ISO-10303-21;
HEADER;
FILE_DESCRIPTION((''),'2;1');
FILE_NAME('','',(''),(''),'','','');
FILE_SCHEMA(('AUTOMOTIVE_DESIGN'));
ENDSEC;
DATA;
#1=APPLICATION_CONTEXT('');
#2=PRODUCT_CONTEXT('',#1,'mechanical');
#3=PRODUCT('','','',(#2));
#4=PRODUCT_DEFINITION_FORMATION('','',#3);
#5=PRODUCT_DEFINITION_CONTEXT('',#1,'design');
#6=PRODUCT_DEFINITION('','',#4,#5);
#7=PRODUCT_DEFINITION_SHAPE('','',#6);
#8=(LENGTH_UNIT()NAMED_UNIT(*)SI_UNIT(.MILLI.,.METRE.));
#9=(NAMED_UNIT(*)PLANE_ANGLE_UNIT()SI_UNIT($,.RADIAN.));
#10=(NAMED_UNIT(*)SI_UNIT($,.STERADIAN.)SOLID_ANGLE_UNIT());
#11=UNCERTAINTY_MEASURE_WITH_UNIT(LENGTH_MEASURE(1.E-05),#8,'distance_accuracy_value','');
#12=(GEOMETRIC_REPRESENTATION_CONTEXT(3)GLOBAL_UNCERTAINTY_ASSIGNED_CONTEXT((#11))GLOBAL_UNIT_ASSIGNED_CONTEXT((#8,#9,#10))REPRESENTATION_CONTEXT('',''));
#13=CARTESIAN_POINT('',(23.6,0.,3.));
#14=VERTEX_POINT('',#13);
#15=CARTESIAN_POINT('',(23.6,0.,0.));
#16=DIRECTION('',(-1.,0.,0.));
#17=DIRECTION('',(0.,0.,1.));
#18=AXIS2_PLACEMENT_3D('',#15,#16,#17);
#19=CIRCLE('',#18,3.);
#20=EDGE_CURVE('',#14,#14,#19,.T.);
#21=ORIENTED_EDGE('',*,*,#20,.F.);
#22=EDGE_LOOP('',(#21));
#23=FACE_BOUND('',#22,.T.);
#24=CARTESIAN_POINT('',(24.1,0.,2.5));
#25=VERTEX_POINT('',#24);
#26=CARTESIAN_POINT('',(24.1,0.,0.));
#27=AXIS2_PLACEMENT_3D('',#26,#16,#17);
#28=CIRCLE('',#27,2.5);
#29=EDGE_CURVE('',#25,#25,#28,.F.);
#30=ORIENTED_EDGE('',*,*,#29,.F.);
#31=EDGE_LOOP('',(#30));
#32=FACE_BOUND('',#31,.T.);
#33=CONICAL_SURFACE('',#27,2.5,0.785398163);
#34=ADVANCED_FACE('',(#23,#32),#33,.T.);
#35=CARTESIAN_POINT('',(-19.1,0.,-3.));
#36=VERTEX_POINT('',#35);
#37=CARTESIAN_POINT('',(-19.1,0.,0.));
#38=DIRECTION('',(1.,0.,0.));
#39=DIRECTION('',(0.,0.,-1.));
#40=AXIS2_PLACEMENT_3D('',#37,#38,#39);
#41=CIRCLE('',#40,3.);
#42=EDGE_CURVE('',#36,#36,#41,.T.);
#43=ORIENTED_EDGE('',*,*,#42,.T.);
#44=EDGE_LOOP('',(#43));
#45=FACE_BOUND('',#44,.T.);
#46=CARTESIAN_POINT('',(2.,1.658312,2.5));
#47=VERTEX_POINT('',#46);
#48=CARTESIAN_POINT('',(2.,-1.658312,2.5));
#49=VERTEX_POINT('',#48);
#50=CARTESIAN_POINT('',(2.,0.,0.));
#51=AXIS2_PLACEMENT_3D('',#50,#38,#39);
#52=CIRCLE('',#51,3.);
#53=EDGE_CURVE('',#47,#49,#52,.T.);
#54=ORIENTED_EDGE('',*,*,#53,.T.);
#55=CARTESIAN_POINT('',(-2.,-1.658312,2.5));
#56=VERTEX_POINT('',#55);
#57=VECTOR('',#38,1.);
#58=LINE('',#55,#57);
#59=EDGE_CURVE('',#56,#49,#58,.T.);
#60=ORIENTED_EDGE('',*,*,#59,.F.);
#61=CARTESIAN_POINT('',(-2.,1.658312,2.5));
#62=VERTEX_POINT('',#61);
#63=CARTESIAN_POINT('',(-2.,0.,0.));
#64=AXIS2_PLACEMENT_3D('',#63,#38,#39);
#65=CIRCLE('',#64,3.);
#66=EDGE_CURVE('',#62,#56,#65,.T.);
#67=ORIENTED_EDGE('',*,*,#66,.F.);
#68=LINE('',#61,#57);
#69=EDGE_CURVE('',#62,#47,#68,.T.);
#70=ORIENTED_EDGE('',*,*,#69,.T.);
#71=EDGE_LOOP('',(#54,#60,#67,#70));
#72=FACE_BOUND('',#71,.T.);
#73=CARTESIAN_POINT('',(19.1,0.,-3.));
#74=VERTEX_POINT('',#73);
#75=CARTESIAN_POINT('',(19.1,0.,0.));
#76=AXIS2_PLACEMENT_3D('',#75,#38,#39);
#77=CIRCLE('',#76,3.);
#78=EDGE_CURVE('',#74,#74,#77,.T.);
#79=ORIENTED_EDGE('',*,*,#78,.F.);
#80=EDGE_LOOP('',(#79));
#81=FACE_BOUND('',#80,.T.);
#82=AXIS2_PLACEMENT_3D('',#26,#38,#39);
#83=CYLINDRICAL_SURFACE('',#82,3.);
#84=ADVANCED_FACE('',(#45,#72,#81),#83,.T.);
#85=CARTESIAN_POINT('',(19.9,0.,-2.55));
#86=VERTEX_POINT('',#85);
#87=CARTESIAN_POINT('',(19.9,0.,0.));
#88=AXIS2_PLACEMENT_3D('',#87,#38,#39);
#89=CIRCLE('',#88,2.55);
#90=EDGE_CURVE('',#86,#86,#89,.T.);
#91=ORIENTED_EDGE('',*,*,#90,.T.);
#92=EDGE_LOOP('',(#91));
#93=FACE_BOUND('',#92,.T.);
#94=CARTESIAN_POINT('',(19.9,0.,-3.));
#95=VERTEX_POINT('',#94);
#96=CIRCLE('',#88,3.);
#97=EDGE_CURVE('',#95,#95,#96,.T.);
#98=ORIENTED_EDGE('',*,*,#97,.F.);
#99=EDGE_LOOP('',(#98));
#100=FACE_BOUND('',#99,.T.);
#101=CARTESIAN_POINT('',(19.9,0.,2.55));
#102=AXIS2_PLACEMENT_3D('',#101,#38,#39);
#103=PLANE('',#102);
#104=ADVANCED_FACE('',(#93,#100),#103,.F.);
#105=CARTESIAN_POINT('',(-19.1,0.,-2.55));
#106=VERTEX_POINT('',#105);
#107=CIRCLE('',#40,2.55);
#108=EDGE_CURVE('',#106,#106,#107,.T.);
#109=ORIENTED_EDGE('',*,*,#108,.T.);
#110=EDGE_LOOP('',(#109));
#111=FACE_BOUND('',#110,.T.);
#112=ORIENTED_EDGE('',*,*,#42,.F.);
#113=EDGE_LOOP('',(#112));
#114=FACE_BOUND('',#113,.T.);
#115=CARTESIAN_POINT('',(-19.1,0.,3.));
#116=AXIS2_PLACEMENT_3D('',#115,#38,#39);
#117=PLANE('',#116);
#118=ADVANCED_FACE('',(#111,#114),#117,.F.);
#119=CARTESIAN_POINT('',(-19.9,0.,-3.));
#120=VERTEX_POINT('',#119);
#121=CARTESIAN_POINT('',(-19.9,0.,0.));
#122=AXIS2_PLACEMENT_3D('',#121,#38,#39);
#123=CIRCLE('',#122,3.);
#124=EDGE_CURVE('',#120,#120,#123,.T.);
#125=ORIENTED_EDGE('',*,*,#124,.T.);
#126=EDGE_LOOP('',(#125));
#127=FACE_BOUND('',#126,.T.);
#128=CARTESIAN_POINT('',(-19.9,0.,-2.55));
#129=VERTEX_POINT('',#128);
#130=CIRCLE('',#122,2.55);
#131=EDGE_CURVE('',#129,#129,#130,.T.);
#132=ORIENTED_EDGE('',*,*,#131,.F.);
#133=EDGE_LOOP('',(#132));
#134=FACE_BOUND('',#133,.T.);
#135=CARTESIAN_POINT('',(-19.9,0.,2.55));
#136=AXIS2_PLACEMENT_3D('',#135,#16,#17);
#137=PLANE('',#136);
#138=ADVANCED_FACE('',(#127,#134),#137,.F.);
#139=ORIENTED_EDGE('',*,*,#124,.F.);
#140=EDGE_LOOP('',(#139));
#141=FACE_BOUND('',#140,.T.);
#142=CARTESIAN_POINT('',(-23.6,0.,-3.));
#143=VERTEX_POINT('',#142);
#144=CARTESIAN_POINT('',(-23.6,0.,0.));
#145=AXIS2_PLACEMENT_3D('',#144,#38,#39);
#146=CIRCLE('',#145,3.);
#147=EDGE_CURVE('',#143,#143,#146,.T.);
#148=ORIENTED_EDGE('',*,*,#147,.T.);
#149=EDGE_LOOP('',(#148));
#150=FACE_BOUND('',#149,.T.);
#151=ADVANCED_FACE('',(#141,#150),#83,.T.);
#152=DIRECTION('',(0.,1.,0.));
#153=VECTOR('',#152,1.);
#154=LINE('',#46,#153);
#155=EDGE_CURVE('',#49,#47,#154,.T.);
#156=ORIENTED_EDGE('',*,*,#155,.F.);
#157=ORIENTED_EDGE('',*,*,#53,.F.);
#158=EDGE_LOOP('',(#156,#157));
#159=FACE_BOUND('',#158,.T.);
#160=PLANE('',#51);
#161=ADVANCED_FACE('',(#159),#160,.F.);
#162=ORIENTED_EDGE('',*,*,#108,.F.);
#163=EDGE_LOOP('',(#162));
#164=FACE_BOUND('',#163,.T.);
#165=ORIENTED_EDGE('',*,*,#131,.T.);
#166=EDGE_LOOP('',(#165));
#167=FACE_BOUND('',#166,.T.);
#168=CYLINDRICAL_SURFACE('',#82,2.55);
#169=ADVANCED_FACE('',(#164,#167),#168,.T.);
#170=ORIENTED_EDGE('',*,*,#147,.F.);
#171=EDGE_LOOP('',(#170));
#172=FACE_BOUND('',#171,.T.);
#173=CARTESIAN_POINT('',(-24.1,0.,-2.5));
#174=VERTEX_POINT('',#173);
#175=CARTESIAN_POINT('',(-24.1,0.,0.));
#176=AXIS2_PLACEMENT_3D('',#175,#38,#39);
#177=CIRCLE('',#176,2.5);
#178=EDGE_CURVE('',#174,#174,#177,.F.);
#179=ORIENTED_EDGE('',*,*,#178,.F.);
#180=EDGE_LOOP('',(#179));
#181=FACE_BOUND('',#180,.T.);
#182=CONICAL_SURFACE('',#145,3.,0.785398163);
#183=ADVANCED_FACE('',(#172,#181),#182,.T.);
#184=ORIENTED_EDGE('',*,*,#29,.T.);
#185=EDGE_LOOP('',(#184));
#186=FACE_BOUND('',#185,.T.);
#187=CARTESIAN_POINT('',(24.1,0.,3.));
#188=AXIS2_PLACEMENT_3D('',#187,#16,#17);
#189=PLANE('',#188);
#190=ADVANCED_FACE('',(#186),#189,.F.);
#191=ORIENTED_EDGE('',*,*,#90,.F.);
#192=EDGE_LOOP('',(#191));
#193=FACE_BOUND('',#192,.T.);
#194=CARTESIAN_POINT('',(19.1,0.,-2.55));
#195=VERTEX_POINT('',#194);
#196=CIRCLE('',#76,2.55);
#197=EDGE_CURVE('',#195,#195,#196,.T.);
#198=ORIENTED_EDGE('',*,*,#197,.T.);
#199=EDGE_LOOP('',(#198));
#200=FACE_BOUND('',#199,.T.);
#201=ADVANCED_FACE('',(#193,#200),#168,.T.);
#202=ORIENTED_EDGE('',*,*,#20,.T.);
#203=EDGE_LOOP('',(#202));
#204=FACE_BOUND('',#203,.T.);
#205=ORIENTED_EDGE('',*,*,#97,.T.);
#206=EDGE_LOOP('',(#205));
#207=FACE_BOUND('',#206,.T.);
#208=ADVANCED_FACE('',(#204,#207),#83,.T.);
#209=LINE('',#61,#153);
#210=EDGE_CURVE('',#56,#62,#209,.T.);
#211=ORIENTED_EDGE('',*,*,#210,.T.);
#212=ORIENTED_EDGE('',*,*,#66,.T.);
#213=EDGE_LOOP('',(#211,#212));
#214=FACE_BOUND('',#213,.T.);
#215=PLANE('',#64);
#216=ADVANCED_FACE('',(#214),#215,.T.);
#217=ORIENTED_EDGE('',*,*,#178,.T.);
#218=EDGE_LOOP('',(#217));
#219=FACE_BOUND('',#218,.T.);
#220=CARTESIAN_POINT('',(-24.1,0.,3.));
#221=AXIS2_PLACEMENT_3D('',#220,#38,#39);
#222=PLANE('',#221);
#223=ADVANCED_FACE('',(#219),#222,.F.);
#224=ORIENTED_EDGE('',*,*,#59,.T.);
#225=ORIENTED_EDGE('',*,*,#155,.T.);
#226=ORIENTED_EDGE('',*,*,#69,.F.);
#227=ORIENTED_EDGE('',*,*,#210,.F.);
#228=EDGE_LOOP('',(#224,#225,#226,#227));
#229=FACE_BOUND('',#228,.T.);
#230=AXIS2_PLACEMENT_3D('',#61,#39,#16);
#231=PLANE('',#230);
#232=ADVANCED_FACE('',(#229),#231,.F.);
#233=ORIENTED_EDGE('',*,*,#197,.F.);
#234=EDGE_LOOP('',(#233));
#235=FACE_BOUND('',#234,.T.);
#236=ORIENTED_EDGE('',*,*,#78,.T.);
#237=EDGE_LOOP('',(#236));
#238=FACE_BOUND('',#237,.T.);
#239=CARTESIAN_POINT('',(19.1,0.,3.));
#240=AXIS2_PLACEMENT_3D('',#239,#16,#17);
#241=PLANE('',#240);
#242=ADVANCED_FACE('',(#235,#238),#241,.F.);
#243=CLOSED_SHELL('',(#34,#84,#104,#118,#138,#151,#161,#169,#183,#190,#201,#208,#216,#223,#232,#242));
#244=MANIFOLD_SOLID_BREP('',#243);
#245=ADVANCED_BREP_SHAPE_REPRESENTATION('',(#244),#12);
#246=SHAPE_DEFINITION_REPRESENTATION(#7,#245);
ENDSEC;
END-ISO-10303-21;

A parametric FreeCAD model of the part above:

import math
import FreeCAD as App
import Part
import Sketcher

V = App.Vector


def edges_at(feature, points):
    """Names of the edges that pass closest to the given points."""
    edges = feature.Shape.Edges
    near = lambda p: min(range(len(edges)), key=lambda i: edges[i].distToShape(Part.Vertex(*p))[0])
    return sorted({f"Edge{near(p) + 1}" for p in points})

doc = App.newDocument("Part")
body = doc.addObject("PartDesign::Body", "Body")

# Sketch on XZ plane
sketch1 = body.newObject("Sketcher::SketchObject", "Sketch")
sketch1.AttachmentSupport = (doc.getObject("XZ_Plane"), [""])
sketch1.MapMode = "FlatFace"
sketch1.addGeometry([
    Part.LineSegment(V(-19.1, 3, 0), V(19.1, 3, 0)),  # 0
    Part.LineSegment(V(19.1, 3, 0), V(19.1, 2.55, 0)),  # 1
    Part.LineSegment(V(19.1, 2.55, 0), V(19.9, 2.55, 0)),  # 2
    Part.LineSegment(V(19.9, 2.55, 0), V(19.9, 3, 0)),  # 3
    Part.LineSegment(V(19.9, 3, 0), V(24.1, 3, 0)),  # 4
    Part.LineSegment(V(24.1, 3, 0), V(24.1, 0, 0)),  # 5
    Part.LineSegment(V(24.1, 0, 0), V(-24.1, 0, 0)),  # 6
    Part.LineSegment(V(-24.1, 0, 0), V(-24.1, 3, 0)),  # 7
    Part.LineSegment(V(-24.1, 3, 0), V(-19.9, 3, 0)),  # 8
    Part.LineSegment(V(-19.9, 3, 0), V(-19.9, 2.55, 0)),  # 9
    Part.LineSegment(V(-19.9, 2.55, 0), V(-19.1, 2.55, 0)),  # 10
    Part.LineSegment(V(-19.1, 2.55, 0), V(-19.1, 3, 0)),  # 11
], False)
sketch1.addConstraint([
    Sketcher.Constraint("Coincident", 0, 2, 1, 1),
    Sketcher.Constraint("Coincident", 1, 2, 2, 1),
    Sketcher.Constraint("Coincident", 2, 2, 3, 1),
    Sketcher.Constraint("Coincident", 3, 2, 4, 1),
    Sketcher.Constraint("Coincident", 4, 2, 5, 1),
    Sketcher.Constraint("Coincident", 5, 2, 6, 1),
    Sketcher.Constraint("Coincident", 6, 2, 7, 1),
    Sketcher.Constraint("Coincident", 7, 2, 8, 1),
    Sketcher.Constraint("Coincident", 8, 2, 9, 1),
    Sketcher.Constraint("Coincident", 9, 2, 10, 1),
    Sketcher.Constraint("Coincident", 10, 2, 11, 1),
    Sketcher.Constraint("Coincident", 11, 2, 0, 1),
    Sketcher.Constraint("Horizontal", 0),
    Sketcher.Constraint("Vertical", 1),
    Sketcher.Constraint("Horizontal", 2),
    Sketcher.Constraint("Vertical", 3),
    Sketcher.Constraint("Horizontal", 4),
    Sketcher.Constraint("Vertical", 5),
    Sketcher.Constraint("Horizontal", 6),
    Sketcher.Constraint("Vertical", 7),
    Sketcher.Constraint("Horizontal", 8),
    Sketcher.Constraint("Vertical", 9),
    Sketcher.Constraint("Horizontal", 10),
    Sketcher.Constraint("Vertical", 11),
    Sketcher.Constraint("Symmetric", 5, 2, 6, 2, -1, 1),
    Sketcher.Constraint("Symmetric", 3, 2, 8, 2, -2),
    Sketcher.Constraint("Symmetric", 1, 2, 10, 2, -2),
    Sketcher.Constraint("Horizontal", 0, 2, 3, 2),
    Sketcher.Constraint("DistanceY", 5, 2, 5, 1, 3.0),
    Sketcher.Constraint("DistanceX", 0, 1, 0, 2, 38.2),
    Sketcher.Constraint("DistanceX", 2, 1, 2, 2, 0.8),
    Sketcher.Constraint("DistanceX", 4, 1, 4, 2, 4.2),
    Sketcher.Constraint("DistanceY", 1, 2, 1, 1, 0.45),
])
revolution = body.newObject("PartDesign::Revolution", "Revolution")
revolution.Profile = sketch1
revolution.ReferenceAxis = (sketch1, ["H_Axis"])
revolution.Angle = 360

# Sketch on YZ plane
sketch2 = body.newObject("Sketcher::SketchObject", "Sketch001")
sketch2.AttachmentSupport = (doc.getObject("YZ_Plane"), [""])
sketch2.MapMode = "FlatFace"
sketch2.addGeometry([
    Part.LineSegment(V(-1.7, 2.5, 0), V(1.7, 2.5, 0)),
    Part.ArcOfCircle(Part.Circle(V(0, 0, 0), V(0, 0, 1), 3), math.radians(56), math.radians(124)),
], False)
sketch2.addConstraint([
    Sketcher.Constraint("Coincident", 0, 1, 1, 2),
    Sketcher.Constraint("Coincident", 1, 1, 0, 2),
    Sketcher.Constraint("Horizontal", 0),
    Sketcher.Constraint("Coincident", 1, 3, -1, 1),
    Sketcher.Constraint("Radius", 1, 3.0),
    Sketcher.Constraint("DistanceY", -1, 1, 0, 1, 2.5),
])
pocket1 = body.newObject("PartDesign::Pocket", "Pocket")
pocket1.Profile = sketch2
pocket1.Length = 4
pocket1.Midplane = True
doc.recompute()

chamfer = body.newObject("PartDesign::Chamfer", "Chamfer")
chamfer.Base = (pocket1, edges_at(pocket1, [(-24.1, 0, 3), (24.1, 0, 3)]))
chamfer.Size = 0.5

doc.recompute()
